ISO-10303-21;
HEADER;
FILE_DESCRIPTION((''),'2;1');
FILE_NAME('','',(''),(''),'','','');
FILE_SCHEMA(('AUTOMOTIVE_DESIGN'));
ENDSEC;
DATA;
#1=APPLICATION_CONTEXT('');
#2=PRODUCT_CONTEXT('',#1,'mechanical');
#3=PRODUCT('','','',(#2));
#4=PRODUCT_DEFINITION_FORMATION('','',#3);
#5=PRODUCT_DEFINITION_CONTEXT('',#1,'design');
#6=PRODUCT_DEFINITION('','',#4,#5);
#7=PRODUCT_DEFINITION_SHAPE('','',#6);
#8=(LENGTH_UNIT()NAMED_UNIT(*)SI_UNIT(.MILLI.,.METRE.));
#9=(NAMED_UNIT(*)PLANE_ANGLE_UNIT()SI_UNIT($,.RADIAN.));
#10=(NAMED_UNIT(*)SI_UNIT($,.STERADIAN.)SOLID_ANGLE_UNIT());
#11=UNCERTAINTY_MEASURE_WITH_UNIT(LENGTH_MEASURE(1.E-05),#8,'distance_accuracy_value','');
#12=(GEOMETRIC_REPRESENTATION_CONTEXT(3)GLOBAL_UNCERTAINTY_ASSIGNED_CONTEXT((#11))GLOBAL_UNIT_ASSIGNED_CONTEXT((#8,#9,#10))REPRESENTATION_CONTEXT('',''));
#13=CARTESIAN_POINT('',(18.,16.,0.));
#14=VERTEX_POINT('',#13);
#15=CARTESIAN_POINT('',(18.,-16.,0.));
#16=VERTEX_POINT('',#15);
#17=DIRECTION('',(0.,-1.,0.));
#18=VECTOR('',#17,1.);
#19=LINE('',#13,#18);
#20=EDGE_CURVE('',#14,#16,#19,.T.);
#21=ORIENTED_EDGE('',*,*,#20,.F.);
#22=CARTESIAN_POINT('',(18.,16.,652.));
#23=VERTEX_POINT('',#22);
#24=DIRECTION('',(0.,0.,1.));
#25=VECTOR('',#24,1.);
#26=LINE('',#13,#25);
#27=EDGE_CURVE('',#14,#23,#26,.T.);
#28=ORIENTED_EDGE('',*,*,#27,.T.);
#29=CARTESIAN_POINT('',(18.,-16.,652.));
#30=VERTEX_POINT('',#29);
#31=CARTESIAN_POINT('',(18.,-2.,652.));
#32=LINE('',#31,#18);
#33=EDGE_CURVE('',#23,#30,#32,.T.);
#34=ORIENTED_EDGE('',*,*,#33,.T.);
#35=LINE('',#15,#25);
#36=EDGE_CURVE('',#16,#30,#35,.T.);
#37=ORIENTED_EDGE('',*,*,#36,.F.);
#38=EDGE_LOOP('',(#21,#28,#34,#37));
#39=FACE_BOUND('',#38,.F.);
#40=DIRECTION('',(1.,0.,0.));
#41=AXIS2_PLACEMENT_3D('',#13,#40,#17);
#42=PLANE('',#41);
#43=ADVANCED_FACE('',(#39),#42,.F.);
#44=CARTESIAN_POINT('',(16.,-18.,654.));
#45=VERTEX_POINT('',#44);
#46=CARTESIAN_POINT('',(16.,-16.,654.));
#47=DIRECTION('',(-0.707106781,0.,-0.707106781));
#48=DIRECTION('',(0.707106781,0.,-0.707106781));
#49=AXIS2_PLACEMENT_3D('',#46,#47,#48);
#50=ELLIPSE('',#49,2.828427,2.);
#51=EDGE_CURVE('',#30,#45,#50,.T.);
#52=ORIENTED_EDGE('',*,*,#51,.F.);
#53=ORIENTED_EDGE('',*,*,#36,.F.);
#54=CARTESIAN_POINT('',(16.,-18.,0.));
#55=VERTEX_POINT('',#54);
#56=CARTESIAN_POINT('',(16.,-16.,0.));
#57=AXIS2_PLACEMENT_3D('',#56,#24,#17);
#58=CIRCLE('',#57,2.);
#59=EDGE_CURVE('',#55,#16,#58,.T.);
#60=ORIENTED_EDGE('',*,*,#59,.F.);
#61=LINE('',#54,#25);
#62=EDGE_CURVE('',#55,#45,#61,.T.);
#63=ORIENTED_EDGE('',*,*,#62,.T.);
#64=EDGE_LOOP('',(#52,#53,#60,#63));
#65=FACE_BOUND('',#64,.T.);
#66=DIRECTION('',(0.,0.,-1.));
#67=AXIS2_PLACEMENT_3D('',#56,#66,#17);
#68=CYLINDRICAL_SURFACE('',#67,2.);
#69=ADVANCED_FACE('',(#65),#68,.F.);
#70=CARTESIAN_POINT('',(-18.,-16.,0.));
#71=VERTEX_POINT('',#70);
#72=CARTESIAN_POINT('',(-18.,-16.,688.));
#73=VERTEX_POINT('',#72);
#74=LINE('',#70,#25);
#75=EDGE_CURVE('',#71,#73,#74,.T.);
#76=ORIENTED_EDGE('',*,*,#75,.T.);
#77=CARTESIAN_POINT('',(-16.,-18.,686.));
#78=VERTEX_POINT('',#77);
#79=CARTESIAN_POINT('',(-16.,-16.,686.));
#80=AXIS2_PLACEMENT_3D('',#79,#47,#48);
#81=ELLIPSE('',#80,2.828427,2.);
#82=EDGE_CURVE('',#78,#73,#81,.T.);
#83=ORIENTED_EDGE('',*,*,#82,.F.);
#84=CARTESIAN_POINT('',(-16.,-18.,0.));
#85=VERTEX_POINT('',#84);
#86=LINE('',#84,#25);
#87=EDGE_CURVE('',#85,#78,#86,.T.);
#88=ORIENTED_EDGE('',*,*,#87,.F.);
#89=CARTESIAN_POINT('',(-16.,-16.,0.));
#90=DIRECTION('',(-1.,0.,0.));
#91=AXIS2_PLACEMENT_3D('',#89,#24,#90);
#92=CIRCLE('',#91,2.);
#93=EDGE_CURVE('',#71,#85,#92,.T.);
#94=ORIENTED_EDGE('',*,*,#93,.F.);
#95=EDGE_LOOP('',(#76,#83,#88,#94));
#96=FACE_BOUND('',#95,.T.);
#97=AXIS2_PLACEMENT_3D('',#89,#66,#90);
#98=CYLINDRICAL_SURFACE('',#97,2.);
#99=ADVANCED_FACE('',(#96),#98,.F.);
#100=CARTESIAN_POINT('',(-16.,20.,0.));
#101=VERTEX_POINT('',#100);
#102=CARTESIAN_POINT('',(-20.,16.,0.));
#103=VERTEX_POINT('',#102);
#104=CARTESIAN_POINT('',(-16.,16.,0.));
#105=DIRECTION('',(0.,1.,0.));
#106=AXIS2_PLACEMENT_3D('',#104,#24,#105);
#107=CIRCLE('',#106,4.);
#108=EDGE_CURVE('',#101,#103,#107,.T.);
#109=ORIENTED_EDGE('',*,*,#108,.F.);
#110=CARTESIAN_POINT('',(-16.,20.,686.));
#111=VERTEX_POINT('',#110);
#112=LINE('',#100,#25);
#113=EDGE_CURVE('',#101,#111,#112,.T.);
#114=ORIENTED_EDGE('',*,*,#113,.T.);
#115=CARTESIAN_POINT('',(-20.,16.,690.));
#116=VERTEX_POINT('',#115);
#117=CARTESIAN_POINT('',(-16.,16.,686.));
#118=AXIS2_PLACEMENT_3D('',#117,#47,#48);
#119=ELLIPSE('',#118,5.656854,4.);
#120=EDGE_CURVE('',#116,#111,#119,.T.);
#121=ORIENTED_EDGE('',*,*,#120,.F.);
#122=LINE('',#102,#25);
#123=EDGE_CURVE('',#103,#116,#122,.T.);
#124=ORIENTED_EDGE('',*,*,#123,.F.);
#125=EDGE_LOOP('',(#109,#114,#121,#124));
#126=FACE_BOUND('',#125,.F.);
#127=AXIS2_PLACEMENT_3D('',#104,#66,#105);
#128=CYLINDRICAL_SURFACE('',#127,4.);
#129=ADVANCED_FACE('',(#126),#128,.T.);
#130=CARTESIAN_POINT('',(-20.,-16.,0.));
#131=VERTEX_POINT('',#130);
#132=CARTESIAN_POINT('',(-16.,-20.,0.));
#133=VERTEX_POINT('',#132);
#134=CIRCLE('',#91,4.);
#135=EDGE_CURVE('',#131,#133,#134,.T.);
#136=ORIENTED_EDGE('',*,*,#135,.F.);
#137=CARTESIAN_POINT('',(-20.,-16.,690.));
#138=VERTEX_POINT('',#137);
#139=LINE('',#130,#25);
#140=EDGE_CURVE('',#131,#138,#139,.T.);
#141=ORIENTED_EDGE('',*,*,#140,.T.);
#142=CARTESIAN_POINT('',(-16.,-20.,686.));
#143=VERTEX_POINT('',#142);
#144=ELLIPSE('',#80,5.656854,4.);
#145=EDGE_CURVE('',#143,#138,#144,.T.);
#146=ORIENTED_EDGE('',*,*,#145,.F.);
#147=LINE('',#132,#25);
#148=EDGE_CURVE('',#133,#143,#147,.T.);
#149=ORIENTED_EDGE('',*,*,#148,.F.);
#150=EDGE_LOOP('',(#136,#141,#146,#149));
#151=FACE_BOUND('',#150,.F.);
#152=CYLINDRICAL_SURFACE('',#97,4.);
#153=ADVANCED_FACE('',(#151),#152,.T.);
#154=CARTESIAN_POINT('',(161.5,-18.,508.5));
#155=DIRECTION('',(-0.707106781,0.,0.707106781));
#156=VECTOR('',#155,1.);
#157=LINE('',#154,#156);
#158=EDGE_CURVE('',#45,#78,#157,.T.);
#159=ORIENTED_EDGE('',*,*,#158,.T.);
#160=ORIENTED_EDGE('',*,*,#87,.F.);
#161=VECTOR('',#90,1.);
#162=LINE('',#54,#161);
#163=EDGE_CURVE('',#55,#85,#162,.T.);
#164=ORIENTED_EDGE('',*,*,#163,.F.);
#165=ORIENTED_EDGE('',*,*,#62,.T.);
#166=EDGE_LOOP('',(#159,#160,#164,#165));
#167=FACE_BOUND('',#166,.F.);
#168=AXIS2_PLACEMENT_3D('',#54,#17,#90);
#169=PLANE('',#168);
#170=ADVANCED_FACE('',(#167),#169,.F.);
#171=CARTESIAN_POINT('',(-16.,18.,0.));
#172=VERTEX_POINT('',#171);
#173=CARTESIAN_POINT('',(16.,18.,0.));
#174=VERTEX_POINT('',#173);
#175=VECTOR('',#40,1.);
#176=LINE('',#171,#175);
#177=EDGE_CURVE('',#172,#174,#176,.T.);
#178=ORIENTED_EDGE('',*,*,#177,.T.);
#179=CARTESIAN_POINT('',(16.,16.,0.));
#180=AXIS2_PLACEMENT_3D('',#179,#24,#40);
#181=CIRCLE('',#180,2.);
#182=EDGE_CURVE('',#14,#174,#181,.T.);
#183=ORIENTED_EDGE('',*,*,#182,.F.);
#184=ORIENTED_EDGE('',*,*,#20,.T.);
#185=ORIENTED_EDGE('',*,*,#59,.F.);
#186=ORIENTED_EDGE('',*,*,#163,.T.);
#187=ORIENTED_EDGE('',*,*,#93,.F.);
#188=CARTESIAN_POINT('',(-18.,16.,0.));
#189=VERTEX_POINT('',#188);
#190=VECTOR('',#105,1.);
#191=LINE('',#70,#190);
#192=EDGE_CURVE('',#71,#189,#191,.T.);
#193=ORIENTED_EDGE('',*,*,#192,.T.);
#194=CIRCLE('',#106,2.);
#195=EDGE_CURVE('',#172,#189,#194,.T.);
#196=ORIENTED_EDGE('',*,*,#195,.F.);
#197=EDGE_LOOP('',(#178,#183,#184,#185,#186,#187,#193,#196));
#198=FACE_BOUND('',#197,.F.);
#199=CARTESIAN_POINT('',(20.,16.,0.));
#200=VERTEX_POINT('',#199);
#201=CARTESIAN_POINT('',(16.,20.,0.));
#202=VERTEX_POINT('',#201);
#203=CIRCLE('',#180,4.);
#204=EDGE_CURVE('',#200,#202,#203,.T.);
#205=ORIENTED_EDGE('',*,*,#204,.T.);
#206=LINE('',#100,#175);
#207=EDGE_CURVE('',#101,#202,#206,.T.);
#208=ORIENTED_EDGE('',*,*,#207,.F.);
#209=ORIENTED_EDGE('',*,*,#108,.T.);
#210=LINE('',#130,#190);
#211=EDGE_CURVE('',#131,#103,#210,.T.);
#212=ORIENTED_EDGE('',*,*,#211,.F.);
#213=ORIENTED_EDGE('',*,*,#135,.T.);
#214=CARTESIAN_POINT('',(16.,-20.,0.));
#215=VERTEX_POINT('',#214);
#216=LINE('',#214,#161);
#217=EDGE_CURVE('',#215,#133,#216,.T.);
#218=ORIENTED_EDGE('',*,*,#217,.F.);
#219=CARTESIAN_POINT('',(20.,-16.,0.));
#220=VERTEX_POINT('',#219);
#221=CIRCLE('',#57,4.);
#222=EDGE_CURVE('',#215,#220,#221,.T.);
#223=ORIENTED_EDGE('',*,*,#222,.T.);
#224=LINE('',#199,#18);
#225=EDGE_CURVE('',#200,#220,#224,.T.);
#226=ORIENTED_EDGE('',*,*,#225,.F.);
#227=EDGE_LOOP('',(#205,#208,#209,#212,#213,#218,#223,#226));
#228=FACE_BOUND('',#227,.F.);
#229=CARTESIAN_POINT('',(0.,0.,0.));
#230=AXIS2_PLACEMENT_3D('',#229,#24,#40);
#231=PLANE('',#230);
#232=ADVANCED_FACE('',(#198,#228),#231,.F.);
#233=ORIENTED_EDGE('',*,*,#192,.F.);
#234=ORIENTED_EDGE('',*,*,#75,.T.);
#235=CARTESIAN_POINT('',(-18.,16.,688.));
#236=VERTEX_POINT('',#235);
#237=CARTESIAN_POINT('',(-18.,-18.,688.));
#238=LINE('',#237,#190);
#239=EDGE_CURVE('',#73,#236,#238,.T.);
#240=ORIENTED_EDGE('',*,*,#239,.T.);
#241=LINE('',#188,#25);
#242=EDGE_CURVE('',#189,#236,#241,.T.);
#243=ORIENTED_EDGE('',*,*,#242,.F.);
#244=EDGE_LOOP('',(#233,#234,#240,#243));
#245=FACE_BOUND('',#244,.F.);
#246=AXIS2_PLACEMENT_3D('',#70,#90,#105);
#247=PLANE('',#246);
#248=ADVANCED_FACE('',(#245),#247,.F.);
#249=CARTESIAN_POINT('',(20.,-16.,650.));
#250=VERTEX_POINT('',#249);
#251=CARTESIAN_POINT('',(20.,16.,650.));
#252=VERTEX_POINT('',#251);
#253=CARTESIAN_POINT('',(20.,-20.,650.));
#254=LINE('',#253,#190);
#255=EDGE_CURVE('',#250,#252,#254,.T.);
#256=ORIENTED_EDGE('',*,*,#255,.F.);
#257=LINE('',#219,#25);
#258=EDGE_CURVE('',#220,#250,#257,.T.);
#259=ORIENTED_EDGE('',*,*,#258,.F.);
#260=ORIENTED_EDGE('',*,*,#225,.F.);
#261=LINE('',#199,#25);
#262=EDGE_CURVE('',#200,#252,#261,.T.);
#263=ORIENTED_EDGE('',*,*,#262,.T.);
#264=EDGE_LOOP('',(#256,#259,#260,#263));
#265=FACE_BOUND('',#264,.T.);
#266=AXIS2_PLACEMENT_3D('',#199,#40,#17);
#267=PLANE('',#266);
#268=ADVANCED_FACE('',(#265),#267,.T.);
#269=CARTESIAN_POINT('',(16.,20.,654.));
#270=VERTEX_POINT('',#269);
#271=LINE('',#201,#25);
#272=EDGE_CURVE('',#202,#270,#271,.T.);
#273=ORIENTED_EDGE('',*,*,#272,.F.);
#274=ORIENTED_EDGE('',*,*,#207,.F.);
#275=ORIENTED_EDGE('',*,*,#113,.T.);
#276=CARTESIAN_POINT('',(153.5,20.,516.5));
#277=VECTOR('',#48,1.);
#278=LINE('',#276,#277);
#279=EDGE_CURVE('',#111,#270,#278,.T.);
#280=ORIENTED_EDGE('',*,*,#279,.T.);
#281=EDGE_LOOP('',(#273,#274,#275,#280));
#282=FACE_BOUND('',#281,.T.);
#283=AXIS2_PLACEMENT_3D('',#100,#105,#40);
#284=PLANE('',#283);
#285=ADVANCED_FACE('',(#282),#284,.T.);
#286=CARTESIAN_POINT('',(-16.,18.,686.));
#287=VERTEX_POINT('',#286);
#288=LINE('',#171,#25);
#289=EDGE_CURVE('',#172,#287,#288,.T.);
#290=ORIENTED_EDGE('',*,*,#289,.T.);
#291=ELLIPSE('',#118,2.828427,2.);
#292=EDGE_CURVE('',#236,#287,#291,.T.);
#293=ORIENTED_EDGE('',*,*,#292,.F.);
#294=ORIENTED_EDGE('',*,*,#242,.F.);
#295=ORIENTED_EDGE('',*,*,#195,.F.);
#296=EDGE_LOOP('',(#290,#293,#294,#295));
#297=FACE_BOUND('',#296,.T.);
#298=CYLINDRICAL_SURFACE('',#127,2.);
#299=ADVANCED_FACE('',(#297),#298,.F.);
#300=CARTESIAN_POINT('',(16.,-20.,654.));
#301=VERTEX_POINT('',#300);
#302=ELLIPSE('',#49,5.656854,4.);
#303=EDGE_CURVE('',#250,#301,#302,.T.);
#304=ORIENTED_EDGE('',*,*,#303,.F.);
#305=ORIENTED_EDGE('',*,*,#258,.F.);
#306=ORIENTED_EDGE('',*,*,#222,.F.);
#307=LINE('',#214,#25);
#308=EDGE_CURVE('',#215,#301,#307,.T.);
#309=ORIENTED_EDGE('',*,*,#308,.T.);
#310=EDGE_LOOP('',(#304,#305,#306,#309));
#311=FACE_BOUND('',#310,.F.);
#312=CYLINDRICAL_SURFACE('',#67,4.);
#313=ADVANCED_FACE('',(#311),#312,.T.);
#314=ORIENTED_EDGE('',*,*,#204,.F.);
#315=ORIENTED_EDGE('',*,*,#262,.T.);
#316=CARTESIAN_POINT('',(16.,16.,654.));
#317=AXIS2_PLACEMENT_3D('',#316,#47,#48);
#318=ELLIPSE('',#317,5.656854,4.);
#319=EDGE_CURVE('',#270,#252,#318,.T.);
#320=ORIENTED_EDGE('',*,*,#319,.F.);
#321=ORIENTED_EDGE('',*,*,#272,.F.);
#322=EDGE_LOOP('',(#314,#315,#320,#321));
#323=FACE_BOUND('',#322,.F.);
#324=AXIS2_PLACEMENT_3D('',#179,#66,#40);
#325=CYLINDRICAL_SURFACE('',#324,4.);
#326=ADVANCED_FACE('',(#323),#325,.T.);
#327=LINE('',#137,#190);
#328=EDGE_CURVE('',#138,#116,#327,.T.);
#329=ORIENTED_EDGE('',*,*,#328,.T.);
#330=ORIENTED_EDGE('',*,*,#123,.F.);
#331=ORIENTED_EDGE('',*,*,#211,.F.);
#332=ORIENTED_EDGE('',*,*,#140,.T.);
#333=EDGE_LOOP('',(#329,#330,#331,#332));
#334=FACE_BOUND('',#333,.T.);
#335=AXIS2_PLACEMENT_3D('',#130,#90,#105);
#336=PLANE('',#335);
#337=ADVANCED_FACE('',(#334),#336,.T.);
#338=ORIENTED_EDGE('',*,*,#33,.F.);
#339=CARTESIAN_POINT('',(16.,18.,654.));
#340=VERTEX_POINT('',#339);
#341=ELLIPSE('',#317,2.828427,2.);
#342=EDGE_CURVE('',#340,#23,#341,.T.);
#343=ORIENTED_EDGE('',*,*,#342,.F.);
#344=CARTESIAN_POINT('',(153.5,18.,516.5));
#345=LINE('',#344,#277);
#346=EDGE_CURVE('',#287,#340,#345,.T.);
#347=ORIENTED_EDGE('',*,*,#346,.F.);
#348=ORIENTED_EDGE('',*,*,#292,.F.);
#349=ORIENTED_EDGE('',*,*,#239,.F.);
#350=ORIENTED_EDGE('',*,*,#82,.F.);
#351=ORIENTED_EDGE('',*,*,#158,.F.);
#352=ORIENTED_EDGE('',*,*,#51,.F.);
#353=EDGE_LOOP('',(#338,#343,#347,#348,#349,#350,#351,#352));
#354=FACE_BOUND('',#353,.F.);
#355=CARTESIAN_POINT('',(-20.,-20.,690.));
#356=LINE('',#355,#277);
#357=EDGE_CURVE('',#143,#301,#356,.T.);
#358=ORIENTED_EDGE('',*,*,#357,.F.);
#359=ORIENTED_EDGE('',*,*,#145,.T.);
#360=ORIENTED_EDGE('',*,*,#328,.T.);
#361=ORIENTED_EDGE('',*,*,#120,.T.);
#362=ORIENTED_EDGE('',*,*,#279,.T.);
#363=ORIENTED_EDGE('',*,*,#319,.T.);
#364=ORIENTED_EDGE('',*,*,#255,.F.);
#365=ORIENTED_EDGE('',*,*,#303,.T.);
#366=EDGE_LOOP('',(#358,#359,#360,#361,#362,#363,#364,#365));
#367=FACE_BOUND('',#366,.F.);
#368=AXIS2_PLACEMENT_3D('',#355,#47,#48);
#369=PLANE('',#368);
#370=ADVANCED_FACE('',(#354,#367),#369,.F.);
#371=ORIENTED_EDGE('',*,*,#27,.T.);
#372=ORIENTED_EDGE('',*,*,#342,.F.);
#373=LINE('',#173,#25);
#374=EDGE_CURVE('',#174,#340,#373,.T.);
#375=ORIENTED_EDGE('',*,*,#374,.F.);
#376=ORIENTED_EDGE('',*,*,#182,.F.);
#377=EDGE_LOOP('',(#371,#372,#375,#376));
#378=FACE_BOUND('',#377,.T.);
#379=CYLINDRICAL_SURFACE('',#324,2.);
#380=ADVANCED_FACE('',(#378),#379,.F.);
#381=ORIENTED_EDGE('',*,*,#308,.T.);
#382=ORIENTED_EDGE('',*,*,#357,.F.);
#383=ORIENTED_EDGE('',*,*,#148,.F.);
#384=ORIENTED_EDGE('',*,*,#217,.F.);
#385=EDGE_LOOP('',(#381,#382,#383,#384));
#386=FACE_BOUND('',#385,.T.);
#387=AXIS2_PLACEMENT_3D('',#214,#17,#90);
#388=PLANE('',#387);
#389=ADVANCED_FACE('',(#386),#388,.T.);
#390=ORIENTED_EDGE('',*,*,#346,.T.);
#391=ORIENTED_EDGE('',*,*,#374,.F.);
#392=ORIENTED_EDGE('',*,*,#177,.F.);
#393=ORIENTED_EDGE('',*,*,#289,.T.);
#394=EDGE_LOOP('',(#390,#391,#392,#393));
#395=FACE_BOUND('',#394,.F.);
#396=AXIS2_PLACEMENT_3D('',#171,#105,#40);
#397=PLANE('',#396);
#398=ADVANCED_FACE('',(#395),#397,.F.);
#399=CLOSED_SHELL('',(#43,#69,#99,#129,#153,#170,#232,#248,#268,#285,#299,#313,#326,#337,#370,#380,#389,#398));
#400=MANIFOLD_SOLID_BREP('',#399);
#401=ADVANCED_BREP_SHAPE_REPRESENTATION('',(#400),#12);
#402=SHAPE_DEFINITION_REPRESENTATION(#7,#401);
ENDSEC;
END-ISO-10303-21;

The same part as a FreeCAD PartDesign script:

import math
import FreeCAD as App
import Part
import Sketcher
Q = App.Units.Quantity

doc = App.newDocument("Part")
params = doc.addObject("Spreadsheet::Sheet", "Params")
for row, (alias, value) in enumerate([
    ("sketch1_radius", "4 mm"),
    ("sketch1_radius2", "2 mm"),
    ("pad1_length", "690 mm"),
    ("pocket1_length", "40 mm"),
], start=1):
    params.set(f"A{row}", alias)
    params.set(f"B{row}", "=" + value)
    params.setAlias(f"B{row}", alias)

body = doc.addObject("PartDesign::Body", "Body")

sketch1 = body.newObject("Sketcher::SketchObject", "Sketch")
sketch1.AttachmentSupport = (doc.getObject("XY_Plane"), [""])
sketch1.MapMode = "FlatFace"
sketch1.addGeometry(Part.LineSegment(App.Vector(-20, 16, 0), App.Vector(-20, -16, 0)), False)
sketch1.addGeometry(Part.ArcOfCircle(Part.Circle(App.Vector(-16, -16, 0), App.Vector(0, 0, 1), 4), math.radians(180), math.radians(270)), False)
sketch1.addGeometry(Part.LineSegment(App.Vector(-16, -20, 0), App.Vector(16, -20, 0)), False)
sketch1.addGeometry(Part.ArcOfCircle(Part.Circle(App.Vector(16, -16, 0), App.Vector(0, 0, 1), 4), math.radians(-90), math.radians(0)), False)
sketch1.addGeometry(Part.LineSegment(App.Vector(20, -16, 0), App.Vector(20, 16, 0)), False)
sketch1.addGeometry(Part.ArcOfCircle(Part.Circle(App.Vector(16, 16, 0), App.Vector(0, 0, 1), 4), math.radians(0), math.radians(90)), False)
sketch1.addGeometry(Part.LineSegment(App.Vector(16, 20, 0), App.Vector(-16, 20, 0)), False)
sketch1.addGeometry(Part.ArcOfCircle(Part.Circle(App.Vector(-16, 16, 0), App.Vector(0, 0, 1), 4), math.radians(90), math.radians(180)), False)
sketch1.addGeometry(Part.ArcOfCircle(Part.Circle(App.Vector(-16, 16, 0), App.Vector(0, 0, 1), 2), math.radians(90), math.radians(180)), False)
sketch1.addGeometry(Part.LineSegment(App.Vector(-16, 18, 0), App.Vector(16, 18, 0)), False)
sketch1.addGeometry(Part.ArcOfCircle(Part.Circle(App.Vector(16, 16, 0), App.Vector(0, 0, 1), 2), math.radians(0), math.radians(90)), False)
sketch1.addGeometry(Part.LineSegment(App.Vector(18, 16, 0), App.Vector(18, -16, 0)), False)
sketch1.addGeometry(Part.ArcOfCircle(Part.Circle(App.Vector(16, -16, 0), App.Vector(0, 0, 1), 2), math.radians(-90), math.radians(0)), False)
sketch1.addGeometry(Part.LineSegment(App.Vector(16, -18, 0), App.Vector(-16, -18, 0)), False)
sketch1.addGeometry(Part.ArcOfCircle(Part.Circle(App.Vector(-16, -16, 0), App.Vector(0, 0, 1), 2), math.radians(180), math.radians(270)), False)
sketch1.addGeometry(Part.LineSegment(App.Vector(-18, -16, 0), App.Vector(-18, 16, 0)), False)
sketch1.addConstraint(Sketcher.Constraint("Tangent", 0, 2, 1, 1))
sketch1.addConstraint(Sketcher.Constraint("Tangent", 1, 2, 2, 1))
sketch1.addConstraint(Sketcher.Constraint("Tangent", 2, 2, 3, 1))
sketch1.addConstraint(Sketcher.Constraint("Tangent", 3, 2, 4, 1))
sketch1.addConstraint(Sketcher.Constraint("Tangent", 4, 2, 5, 1))
sketch1.addConstraint(Sketcher.Constraint("Tangent", 5, 2, 6, 1))
sketch1.addConstraint(Sketcher.Constraint("Tangent", 6, 2, 7, 1))
sketch1.addConstraint(Sketcher.Constraint("Tangent", 7, 2, 0, 1))
sketch1.addConstraint(Sketcher.Constraint("Tangent", 8, 1, 9, 1))
sketch1.addConstraint(Sketcher.Constraint("Tangent", 9, 2, 10, 2))
sketch1.addConstraint(Sketcher.Constraint("Tangent", 10, 1, 11, 1))
sketch1.addConstraint(Sketcher.Constraint("Tangent", 11, 2, 12, 2))
sketch1.addConstraint(Sketcher.Constraint("Tangent", 12, 1, 13, 1))
sketch1.addConstraint(Sketcher.Constraint("Tangent", 13, 2, 14, 2))
sketch1.addConstraint(Sketcher.Constraint("Tangent", 14, 1, 15, 1))
sketch1.addConstraint(Sketcher.Constraint("Tangent", 15, 2, 8, 2))
sketch1.addConstraint(Sketcher.Constraint("Vertical", 0))
sketch1.addConstraint(Sketcher.Constraint("Horizontal", 2))
sketch1.addConstraint(Sketcher.Constraint("Vertical", 4))
sketch1.addConstraint(Sketcher.Constraint("Horizontal", 6))
sketch1.addConstraint(Sketcher.Constraint("Horizontal", 9))
sketch1.addConstraint(Sketcher.Constraint("Vertical", 11))
sketch1.addConstraint(Sketcher.Constraint("Horizontal", 13))
sketch1.addConstraint(Sketcher.Constraint("Vertical", 15))
sketch1.addConstraint(Sketcher.Constraint("Coincident", 8, 3, 7, 3))
sketch1.addConstraint(Sketcher.Constraint("Coincident", 10, 3, 5, 3))
sketch1.addConstraint(Sketcher.Constraint("Coincident", 12, 3, 3, 3))
sketch1.addConstraint(Sketcher.Constraint("Equal", 1, 3))
sketch1.addConstraint(Sketcher.Constraint("Equal", 3, 5))
sketch1.addConstraint(Sketcher.Constraint("Equal", 5, 7))
sketch1.addConstraint(Sketcher.Constraint("Equal", 12, 14))
sketch1.addConstraint(Sketcher.Constraint("Symmetric", 1, 3, 5, 3, -1, 1))
sketch1.addConstraint(Sketcher.Constraint("Equal", 13, 0))
sketch1.addConstraint(Sketcher.Constraint("Radius", 1, Q("4 mm")))
sketch1.addConstraint(Sketcher.Constraint("Radius", 8, Q("2 mm")))
sketch1.addConstraint(Sketcher.Constraint("DistanceX", 0, 2, -1, 1, Q("20 mm")))
sketch1.setExpression("Constraints[33]", "Params.sketch1_radius")
sketch1.setExpression("Constraints[34]", "Params.sketch1_radius2")
pad1 = body.newObject("PartDesign::Pad", "Pad")
pad1.Profile = sketch1
pad1.setExpression("Length", "Params.pad1_length")

sketch2 = body.newObject("Sketcher::SketchObject", "Sketch001")
sketch2.AttachmentSupport = (doc.getObject("XZ_Plane"), [""])
sketch2.MapMode = "FlatFace"
sketch2.AttachmentOffset = App.Placement(App.Vector(0, 0, 20), App.Rotation())
sketch2.addGeometry(Part.LineSegment(App.Vector(24, 702, 0), App.Vector(-20, 690, 0)), False)
sketch2.addGeometry(Part.LineSegment(App.Vector(-20, 690, 0), App.Vector(24, 646, 0)), False)
sketch2.addGeometry(Part.LineSegment(App.Vector(24, 646, 0), App.Vector(24, 702, 0)), False)
sketch2.addConstraint(Sketcher.Constraint("Coincident", 0, 2, 1, 1))
sketch2.addConstraint(Sketcher.Constraint("Coincident", 1, 2, 2, 1))
sketch2.addConstraint(Sketcher.Constraint("Coincident", 2, 2, 0, 1))
sketch2.addConstraint(Sketcher.Constraint("Vertical", 2))
sketch2.addConstraint(Sketcher.Constraint("Angle", 1, Q("-45 deg")))
sketch2.addConstraint(Sketcher.Constraint("DistanceX", 0, 2, -1, 1, Q("20 mm")))
sketch2.addConstraint(Sketcher.Constraint("DistanceY", -1, 1, 0, 2, Q("690 mm")))
sketch2.addConstraint(Sketcher.Constraint("Distance", 0, Q("46.094 mm")))
sketch2.addConstraint(Sketcher.Constraint("DistanceY", 2, 1, 2, 2, Q("56.7682 mm")))
pocket1 = body.newObject("PartDesign::Pocket", "Pocket")
pocket1.Profile = sketch2
pocket1.setExpression("Length", "Params.pocket1_length")

doc.recompute()
